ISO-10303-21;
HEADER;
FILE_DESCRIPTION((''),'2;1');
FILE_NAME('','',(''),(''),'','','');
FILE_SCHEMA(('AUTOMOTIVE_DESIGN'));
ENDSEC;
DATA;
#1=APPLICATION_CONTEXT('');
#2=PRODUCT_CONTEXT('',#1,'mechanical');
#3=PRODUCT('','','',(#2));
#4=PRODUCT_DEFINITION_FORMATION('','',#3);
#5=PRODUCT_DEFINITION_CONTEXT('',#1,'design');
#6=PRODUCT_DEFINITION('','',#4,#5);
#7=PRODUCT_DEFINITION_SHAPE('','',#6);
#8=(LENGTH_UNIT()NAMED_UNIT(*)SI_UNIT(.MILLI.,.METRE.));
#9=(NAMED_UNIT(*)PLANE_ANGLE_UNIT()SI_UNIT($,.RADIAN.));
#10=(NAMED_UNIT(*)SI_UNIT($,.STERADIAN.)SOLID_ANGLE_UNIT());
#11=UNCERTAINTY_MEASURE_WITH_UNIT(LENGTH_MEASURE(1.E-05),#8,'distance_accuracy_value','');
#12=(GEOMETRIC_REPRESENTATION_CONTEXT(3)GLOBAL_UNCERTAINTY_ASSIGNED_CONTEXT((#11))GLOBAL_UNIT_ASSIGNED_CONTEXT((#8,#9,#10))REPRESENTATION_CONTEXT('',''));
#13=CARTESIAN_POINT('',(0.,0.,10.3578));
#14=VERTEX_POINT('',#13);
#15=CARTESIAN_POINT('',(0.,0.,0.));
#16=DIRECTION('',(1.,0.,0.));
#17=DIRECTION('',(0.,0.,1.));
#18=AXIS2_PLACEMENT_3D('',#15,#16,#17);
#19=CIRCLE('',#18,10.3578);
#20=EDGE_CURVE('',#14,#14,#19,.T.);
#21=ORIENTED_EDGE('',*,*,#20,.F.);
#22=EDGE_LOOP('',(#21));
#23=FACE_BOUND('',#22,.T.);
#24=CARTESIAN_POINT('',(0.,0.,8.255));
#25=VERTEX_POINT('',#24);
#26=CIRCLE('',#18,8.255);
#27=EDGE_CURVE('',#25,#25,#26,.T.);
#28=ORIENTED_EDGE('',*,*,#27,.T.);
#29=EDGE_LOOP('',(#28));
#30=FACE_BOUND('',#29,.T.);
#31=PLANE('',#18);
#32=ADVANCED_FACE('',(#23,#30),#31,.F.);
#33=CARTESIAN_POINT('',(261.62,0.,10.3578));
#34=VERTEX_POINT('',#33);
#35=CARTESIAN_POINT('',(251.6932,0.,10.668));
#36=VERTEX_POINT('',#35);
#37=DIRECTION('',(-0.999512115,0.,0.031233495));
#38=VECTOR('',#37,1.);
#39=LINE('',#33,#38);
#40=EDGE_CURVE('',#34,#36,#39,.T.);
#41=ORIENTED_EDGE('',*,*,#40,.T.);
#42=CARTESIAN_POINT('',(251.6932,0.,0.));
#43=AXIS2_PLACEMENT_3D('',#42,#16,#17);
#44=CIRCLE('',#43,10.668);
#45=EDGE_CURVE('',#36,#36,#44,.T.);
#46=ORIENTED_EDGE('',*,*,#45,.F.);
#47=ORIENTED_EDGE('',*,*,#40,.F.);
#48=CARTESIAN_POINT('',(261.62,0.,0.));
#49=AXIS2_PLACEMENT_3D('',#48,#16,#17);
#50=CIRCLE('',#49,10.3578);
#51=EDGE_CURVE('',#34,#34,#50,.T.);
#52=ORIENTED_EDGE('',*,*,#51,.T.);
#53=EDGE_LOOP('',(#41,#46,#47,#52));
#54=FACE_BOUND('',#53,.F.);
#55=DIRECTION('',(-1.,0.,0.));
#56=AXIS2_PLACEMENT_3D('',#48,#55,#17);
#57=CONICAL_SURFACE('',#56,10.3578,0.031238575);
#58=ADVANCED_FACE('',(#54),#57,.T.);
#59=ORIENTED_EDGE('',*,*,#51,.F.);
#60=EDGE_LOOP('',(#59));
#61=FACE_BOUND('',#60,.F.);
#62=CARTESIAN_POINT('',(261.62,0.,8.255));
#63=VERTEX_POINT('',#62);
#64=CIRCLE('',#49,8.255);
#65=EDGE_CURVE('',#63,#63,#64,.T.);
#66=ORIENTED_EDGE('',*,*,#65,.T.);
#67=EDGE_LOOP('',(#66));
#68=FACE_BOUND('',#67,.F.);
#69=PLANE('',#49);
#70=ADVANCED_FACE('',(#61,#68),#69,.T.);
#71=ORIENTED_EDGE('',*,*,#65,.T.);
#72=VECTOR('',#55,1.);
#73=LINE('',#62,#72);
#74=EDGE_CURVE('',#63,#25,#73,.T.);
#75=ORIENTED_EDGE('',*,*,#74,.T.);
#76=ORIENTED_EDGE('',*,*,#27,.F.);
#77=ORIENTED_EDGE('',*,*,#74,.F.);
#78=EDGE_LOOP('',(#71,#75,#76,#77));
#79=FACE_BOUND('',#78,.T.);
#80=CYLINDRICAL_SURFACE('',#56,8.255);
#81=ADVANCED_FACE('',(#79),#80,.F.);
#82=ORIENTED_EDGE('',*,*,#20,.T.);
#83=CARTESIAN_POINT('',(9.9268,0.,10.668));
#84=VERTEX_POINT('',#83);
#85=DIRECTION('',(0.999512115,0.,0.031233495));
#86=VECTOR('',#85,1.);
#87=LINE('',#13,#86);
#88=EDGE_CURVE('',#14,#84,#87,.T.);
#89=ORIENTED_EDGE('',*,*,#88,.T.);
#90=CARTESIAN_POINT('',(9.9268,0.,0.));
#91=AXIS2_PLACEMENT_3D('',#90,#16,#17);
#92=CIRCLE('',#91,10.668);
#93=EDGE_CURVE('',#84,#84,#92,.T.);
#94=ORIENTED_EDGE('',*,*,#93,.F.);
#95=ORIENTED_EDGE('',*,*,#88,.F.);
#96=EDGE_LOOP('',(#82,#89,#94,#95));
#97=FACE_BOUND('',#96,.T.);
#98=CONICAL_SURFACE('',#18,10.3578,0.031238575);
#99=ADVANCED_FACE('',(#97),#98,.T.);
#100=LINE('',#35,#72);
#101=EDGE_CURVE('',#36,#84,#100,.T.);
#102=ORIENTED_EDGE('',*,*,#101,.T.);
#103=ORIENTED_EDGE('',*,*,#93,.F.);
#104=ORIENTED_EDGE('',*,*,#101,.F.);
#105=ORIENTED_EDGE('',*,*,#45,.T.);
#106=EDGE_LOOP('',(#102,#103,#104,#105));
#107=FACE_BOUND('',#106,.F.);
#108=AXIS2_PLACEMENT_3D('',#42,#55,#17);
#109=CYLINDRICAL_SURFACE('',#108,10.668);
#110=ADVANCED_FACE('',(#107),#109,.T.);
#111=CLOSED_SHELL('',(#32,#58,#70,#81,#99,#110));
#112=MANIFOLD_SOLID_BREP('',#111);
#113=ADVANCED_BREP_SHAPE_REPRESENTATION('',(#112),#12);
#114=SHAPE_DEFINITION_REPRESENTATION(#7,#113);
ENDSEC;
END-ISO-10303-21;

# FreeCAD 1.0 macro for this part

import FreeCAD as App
import Part
import Sketcher
from FreeCAD import Vector
Q = App.Units.Quantity

doc = App.newDocument("Part")
body = doc.addObject("PartDesign::Body", "Body")

# Sketch on XZ plane
sketch1 = body.newObject("Sketcher::SketchObject", "Sketch")
sketch1.AttachmentSupport = (doc.getObject("XZ_Plane"), [""])
sketch1.MapMode = "FlatFace"
sketch1.addGeometry(Part.LineSegment(Vector(261.6, 10.4, 0), Vector(261.6, 8.3, 0)), False)
sketch1.addGeometry(Part.LineSegment(Vector(261.6, 8.3, 0), Vector(0, 8.3, 0)), False)
sketch1.addGeometry(Part.LineSegment(Vector(0, 8.3, 0), Vector(0, 10.4, 0)), False)
sketch1.addGeometry(Part.LineSegment(Vector(0, 10.4, 0), Vector(9.9, 10.7, 0)), False)
sketch1.addGeometry(Part.LineSegment(Vector(9.9, 10.7, 0), Vector(251.7, 10.7, 0)), False)
sketch1.addGeometry(Part.LineSegment(Vector(251.7, 10.7, 0), Vector(261.6, 10.4, 0)), False)
sketch1.addConstraint(Sketcher.Constraint("Coincident", 0, 2, 1, 1))
sketch1.addConstraint(Sketcher.Constraint("Coincident", 1, 2, 2, 1))
sketch1.addConstraint(Sketcher.Constraint("Coincident", 2, 2, 3, 1))
sketch1.addConstraint(Sketcher.Constraint("Coincident", 3, 2, 4, 1))
sketch1.addConstraint(Sketcher.Constraint("Coincident", 4, 2, 5, 1))
sketch1.addConstraint(Sketcher.Constraint("Coincident", 5, 2, 0, 1))
sketch1.addConstraint(Sketcher.Constraint("Vertical", 0))
sketch1.addConstraint(Sketcher.Constraint("Horizontal", 1))
sketch1.addConstraint(Sketcher.Constraint("Vertical", 2))
sketch1.addConstraint(Sketcher.Constraint("Horizontal", 4))
sketch1.addConstraint(Sketcher.Constraint("PointOnObject", 1, 2, -2))
sketch1.addConstraint(Sketcher.Constraint("Horizontal", 2, 2, 5, 2))
sketch1.addConstraint(Sketcher.Constraint("Equal", 3, 5))
sketch1.addConstraint(Sketcher.Constraint("DistanceX", 1, 2, 1, 1, Q("10.3 in")))
sketch1.addConstraint(Sketcher.Constraint("Angle", 3, Q("1.7898 deg")))
sketch1.addConstraint(Sketcher.Constraint("DistanceY", -1, 1, 3, 2, Q("0.42 in")))
sketch1.addConstraint(Sketcher.Constraint("Distance", 3, Q("0.391 in")))
sketch1.addConstraint(Sketcher.Constraint("DistanceY", -1, 1, 0, 2, Q("0.325 in")))
revolution = body.newObject("PartDesign::Revolution", "Revolution")
revolution.Profile = sketch1
revolution.ReferenceAxis = (sketch1, ["H_Axis"])
revolution.Angle = 360

doc.recompute()
